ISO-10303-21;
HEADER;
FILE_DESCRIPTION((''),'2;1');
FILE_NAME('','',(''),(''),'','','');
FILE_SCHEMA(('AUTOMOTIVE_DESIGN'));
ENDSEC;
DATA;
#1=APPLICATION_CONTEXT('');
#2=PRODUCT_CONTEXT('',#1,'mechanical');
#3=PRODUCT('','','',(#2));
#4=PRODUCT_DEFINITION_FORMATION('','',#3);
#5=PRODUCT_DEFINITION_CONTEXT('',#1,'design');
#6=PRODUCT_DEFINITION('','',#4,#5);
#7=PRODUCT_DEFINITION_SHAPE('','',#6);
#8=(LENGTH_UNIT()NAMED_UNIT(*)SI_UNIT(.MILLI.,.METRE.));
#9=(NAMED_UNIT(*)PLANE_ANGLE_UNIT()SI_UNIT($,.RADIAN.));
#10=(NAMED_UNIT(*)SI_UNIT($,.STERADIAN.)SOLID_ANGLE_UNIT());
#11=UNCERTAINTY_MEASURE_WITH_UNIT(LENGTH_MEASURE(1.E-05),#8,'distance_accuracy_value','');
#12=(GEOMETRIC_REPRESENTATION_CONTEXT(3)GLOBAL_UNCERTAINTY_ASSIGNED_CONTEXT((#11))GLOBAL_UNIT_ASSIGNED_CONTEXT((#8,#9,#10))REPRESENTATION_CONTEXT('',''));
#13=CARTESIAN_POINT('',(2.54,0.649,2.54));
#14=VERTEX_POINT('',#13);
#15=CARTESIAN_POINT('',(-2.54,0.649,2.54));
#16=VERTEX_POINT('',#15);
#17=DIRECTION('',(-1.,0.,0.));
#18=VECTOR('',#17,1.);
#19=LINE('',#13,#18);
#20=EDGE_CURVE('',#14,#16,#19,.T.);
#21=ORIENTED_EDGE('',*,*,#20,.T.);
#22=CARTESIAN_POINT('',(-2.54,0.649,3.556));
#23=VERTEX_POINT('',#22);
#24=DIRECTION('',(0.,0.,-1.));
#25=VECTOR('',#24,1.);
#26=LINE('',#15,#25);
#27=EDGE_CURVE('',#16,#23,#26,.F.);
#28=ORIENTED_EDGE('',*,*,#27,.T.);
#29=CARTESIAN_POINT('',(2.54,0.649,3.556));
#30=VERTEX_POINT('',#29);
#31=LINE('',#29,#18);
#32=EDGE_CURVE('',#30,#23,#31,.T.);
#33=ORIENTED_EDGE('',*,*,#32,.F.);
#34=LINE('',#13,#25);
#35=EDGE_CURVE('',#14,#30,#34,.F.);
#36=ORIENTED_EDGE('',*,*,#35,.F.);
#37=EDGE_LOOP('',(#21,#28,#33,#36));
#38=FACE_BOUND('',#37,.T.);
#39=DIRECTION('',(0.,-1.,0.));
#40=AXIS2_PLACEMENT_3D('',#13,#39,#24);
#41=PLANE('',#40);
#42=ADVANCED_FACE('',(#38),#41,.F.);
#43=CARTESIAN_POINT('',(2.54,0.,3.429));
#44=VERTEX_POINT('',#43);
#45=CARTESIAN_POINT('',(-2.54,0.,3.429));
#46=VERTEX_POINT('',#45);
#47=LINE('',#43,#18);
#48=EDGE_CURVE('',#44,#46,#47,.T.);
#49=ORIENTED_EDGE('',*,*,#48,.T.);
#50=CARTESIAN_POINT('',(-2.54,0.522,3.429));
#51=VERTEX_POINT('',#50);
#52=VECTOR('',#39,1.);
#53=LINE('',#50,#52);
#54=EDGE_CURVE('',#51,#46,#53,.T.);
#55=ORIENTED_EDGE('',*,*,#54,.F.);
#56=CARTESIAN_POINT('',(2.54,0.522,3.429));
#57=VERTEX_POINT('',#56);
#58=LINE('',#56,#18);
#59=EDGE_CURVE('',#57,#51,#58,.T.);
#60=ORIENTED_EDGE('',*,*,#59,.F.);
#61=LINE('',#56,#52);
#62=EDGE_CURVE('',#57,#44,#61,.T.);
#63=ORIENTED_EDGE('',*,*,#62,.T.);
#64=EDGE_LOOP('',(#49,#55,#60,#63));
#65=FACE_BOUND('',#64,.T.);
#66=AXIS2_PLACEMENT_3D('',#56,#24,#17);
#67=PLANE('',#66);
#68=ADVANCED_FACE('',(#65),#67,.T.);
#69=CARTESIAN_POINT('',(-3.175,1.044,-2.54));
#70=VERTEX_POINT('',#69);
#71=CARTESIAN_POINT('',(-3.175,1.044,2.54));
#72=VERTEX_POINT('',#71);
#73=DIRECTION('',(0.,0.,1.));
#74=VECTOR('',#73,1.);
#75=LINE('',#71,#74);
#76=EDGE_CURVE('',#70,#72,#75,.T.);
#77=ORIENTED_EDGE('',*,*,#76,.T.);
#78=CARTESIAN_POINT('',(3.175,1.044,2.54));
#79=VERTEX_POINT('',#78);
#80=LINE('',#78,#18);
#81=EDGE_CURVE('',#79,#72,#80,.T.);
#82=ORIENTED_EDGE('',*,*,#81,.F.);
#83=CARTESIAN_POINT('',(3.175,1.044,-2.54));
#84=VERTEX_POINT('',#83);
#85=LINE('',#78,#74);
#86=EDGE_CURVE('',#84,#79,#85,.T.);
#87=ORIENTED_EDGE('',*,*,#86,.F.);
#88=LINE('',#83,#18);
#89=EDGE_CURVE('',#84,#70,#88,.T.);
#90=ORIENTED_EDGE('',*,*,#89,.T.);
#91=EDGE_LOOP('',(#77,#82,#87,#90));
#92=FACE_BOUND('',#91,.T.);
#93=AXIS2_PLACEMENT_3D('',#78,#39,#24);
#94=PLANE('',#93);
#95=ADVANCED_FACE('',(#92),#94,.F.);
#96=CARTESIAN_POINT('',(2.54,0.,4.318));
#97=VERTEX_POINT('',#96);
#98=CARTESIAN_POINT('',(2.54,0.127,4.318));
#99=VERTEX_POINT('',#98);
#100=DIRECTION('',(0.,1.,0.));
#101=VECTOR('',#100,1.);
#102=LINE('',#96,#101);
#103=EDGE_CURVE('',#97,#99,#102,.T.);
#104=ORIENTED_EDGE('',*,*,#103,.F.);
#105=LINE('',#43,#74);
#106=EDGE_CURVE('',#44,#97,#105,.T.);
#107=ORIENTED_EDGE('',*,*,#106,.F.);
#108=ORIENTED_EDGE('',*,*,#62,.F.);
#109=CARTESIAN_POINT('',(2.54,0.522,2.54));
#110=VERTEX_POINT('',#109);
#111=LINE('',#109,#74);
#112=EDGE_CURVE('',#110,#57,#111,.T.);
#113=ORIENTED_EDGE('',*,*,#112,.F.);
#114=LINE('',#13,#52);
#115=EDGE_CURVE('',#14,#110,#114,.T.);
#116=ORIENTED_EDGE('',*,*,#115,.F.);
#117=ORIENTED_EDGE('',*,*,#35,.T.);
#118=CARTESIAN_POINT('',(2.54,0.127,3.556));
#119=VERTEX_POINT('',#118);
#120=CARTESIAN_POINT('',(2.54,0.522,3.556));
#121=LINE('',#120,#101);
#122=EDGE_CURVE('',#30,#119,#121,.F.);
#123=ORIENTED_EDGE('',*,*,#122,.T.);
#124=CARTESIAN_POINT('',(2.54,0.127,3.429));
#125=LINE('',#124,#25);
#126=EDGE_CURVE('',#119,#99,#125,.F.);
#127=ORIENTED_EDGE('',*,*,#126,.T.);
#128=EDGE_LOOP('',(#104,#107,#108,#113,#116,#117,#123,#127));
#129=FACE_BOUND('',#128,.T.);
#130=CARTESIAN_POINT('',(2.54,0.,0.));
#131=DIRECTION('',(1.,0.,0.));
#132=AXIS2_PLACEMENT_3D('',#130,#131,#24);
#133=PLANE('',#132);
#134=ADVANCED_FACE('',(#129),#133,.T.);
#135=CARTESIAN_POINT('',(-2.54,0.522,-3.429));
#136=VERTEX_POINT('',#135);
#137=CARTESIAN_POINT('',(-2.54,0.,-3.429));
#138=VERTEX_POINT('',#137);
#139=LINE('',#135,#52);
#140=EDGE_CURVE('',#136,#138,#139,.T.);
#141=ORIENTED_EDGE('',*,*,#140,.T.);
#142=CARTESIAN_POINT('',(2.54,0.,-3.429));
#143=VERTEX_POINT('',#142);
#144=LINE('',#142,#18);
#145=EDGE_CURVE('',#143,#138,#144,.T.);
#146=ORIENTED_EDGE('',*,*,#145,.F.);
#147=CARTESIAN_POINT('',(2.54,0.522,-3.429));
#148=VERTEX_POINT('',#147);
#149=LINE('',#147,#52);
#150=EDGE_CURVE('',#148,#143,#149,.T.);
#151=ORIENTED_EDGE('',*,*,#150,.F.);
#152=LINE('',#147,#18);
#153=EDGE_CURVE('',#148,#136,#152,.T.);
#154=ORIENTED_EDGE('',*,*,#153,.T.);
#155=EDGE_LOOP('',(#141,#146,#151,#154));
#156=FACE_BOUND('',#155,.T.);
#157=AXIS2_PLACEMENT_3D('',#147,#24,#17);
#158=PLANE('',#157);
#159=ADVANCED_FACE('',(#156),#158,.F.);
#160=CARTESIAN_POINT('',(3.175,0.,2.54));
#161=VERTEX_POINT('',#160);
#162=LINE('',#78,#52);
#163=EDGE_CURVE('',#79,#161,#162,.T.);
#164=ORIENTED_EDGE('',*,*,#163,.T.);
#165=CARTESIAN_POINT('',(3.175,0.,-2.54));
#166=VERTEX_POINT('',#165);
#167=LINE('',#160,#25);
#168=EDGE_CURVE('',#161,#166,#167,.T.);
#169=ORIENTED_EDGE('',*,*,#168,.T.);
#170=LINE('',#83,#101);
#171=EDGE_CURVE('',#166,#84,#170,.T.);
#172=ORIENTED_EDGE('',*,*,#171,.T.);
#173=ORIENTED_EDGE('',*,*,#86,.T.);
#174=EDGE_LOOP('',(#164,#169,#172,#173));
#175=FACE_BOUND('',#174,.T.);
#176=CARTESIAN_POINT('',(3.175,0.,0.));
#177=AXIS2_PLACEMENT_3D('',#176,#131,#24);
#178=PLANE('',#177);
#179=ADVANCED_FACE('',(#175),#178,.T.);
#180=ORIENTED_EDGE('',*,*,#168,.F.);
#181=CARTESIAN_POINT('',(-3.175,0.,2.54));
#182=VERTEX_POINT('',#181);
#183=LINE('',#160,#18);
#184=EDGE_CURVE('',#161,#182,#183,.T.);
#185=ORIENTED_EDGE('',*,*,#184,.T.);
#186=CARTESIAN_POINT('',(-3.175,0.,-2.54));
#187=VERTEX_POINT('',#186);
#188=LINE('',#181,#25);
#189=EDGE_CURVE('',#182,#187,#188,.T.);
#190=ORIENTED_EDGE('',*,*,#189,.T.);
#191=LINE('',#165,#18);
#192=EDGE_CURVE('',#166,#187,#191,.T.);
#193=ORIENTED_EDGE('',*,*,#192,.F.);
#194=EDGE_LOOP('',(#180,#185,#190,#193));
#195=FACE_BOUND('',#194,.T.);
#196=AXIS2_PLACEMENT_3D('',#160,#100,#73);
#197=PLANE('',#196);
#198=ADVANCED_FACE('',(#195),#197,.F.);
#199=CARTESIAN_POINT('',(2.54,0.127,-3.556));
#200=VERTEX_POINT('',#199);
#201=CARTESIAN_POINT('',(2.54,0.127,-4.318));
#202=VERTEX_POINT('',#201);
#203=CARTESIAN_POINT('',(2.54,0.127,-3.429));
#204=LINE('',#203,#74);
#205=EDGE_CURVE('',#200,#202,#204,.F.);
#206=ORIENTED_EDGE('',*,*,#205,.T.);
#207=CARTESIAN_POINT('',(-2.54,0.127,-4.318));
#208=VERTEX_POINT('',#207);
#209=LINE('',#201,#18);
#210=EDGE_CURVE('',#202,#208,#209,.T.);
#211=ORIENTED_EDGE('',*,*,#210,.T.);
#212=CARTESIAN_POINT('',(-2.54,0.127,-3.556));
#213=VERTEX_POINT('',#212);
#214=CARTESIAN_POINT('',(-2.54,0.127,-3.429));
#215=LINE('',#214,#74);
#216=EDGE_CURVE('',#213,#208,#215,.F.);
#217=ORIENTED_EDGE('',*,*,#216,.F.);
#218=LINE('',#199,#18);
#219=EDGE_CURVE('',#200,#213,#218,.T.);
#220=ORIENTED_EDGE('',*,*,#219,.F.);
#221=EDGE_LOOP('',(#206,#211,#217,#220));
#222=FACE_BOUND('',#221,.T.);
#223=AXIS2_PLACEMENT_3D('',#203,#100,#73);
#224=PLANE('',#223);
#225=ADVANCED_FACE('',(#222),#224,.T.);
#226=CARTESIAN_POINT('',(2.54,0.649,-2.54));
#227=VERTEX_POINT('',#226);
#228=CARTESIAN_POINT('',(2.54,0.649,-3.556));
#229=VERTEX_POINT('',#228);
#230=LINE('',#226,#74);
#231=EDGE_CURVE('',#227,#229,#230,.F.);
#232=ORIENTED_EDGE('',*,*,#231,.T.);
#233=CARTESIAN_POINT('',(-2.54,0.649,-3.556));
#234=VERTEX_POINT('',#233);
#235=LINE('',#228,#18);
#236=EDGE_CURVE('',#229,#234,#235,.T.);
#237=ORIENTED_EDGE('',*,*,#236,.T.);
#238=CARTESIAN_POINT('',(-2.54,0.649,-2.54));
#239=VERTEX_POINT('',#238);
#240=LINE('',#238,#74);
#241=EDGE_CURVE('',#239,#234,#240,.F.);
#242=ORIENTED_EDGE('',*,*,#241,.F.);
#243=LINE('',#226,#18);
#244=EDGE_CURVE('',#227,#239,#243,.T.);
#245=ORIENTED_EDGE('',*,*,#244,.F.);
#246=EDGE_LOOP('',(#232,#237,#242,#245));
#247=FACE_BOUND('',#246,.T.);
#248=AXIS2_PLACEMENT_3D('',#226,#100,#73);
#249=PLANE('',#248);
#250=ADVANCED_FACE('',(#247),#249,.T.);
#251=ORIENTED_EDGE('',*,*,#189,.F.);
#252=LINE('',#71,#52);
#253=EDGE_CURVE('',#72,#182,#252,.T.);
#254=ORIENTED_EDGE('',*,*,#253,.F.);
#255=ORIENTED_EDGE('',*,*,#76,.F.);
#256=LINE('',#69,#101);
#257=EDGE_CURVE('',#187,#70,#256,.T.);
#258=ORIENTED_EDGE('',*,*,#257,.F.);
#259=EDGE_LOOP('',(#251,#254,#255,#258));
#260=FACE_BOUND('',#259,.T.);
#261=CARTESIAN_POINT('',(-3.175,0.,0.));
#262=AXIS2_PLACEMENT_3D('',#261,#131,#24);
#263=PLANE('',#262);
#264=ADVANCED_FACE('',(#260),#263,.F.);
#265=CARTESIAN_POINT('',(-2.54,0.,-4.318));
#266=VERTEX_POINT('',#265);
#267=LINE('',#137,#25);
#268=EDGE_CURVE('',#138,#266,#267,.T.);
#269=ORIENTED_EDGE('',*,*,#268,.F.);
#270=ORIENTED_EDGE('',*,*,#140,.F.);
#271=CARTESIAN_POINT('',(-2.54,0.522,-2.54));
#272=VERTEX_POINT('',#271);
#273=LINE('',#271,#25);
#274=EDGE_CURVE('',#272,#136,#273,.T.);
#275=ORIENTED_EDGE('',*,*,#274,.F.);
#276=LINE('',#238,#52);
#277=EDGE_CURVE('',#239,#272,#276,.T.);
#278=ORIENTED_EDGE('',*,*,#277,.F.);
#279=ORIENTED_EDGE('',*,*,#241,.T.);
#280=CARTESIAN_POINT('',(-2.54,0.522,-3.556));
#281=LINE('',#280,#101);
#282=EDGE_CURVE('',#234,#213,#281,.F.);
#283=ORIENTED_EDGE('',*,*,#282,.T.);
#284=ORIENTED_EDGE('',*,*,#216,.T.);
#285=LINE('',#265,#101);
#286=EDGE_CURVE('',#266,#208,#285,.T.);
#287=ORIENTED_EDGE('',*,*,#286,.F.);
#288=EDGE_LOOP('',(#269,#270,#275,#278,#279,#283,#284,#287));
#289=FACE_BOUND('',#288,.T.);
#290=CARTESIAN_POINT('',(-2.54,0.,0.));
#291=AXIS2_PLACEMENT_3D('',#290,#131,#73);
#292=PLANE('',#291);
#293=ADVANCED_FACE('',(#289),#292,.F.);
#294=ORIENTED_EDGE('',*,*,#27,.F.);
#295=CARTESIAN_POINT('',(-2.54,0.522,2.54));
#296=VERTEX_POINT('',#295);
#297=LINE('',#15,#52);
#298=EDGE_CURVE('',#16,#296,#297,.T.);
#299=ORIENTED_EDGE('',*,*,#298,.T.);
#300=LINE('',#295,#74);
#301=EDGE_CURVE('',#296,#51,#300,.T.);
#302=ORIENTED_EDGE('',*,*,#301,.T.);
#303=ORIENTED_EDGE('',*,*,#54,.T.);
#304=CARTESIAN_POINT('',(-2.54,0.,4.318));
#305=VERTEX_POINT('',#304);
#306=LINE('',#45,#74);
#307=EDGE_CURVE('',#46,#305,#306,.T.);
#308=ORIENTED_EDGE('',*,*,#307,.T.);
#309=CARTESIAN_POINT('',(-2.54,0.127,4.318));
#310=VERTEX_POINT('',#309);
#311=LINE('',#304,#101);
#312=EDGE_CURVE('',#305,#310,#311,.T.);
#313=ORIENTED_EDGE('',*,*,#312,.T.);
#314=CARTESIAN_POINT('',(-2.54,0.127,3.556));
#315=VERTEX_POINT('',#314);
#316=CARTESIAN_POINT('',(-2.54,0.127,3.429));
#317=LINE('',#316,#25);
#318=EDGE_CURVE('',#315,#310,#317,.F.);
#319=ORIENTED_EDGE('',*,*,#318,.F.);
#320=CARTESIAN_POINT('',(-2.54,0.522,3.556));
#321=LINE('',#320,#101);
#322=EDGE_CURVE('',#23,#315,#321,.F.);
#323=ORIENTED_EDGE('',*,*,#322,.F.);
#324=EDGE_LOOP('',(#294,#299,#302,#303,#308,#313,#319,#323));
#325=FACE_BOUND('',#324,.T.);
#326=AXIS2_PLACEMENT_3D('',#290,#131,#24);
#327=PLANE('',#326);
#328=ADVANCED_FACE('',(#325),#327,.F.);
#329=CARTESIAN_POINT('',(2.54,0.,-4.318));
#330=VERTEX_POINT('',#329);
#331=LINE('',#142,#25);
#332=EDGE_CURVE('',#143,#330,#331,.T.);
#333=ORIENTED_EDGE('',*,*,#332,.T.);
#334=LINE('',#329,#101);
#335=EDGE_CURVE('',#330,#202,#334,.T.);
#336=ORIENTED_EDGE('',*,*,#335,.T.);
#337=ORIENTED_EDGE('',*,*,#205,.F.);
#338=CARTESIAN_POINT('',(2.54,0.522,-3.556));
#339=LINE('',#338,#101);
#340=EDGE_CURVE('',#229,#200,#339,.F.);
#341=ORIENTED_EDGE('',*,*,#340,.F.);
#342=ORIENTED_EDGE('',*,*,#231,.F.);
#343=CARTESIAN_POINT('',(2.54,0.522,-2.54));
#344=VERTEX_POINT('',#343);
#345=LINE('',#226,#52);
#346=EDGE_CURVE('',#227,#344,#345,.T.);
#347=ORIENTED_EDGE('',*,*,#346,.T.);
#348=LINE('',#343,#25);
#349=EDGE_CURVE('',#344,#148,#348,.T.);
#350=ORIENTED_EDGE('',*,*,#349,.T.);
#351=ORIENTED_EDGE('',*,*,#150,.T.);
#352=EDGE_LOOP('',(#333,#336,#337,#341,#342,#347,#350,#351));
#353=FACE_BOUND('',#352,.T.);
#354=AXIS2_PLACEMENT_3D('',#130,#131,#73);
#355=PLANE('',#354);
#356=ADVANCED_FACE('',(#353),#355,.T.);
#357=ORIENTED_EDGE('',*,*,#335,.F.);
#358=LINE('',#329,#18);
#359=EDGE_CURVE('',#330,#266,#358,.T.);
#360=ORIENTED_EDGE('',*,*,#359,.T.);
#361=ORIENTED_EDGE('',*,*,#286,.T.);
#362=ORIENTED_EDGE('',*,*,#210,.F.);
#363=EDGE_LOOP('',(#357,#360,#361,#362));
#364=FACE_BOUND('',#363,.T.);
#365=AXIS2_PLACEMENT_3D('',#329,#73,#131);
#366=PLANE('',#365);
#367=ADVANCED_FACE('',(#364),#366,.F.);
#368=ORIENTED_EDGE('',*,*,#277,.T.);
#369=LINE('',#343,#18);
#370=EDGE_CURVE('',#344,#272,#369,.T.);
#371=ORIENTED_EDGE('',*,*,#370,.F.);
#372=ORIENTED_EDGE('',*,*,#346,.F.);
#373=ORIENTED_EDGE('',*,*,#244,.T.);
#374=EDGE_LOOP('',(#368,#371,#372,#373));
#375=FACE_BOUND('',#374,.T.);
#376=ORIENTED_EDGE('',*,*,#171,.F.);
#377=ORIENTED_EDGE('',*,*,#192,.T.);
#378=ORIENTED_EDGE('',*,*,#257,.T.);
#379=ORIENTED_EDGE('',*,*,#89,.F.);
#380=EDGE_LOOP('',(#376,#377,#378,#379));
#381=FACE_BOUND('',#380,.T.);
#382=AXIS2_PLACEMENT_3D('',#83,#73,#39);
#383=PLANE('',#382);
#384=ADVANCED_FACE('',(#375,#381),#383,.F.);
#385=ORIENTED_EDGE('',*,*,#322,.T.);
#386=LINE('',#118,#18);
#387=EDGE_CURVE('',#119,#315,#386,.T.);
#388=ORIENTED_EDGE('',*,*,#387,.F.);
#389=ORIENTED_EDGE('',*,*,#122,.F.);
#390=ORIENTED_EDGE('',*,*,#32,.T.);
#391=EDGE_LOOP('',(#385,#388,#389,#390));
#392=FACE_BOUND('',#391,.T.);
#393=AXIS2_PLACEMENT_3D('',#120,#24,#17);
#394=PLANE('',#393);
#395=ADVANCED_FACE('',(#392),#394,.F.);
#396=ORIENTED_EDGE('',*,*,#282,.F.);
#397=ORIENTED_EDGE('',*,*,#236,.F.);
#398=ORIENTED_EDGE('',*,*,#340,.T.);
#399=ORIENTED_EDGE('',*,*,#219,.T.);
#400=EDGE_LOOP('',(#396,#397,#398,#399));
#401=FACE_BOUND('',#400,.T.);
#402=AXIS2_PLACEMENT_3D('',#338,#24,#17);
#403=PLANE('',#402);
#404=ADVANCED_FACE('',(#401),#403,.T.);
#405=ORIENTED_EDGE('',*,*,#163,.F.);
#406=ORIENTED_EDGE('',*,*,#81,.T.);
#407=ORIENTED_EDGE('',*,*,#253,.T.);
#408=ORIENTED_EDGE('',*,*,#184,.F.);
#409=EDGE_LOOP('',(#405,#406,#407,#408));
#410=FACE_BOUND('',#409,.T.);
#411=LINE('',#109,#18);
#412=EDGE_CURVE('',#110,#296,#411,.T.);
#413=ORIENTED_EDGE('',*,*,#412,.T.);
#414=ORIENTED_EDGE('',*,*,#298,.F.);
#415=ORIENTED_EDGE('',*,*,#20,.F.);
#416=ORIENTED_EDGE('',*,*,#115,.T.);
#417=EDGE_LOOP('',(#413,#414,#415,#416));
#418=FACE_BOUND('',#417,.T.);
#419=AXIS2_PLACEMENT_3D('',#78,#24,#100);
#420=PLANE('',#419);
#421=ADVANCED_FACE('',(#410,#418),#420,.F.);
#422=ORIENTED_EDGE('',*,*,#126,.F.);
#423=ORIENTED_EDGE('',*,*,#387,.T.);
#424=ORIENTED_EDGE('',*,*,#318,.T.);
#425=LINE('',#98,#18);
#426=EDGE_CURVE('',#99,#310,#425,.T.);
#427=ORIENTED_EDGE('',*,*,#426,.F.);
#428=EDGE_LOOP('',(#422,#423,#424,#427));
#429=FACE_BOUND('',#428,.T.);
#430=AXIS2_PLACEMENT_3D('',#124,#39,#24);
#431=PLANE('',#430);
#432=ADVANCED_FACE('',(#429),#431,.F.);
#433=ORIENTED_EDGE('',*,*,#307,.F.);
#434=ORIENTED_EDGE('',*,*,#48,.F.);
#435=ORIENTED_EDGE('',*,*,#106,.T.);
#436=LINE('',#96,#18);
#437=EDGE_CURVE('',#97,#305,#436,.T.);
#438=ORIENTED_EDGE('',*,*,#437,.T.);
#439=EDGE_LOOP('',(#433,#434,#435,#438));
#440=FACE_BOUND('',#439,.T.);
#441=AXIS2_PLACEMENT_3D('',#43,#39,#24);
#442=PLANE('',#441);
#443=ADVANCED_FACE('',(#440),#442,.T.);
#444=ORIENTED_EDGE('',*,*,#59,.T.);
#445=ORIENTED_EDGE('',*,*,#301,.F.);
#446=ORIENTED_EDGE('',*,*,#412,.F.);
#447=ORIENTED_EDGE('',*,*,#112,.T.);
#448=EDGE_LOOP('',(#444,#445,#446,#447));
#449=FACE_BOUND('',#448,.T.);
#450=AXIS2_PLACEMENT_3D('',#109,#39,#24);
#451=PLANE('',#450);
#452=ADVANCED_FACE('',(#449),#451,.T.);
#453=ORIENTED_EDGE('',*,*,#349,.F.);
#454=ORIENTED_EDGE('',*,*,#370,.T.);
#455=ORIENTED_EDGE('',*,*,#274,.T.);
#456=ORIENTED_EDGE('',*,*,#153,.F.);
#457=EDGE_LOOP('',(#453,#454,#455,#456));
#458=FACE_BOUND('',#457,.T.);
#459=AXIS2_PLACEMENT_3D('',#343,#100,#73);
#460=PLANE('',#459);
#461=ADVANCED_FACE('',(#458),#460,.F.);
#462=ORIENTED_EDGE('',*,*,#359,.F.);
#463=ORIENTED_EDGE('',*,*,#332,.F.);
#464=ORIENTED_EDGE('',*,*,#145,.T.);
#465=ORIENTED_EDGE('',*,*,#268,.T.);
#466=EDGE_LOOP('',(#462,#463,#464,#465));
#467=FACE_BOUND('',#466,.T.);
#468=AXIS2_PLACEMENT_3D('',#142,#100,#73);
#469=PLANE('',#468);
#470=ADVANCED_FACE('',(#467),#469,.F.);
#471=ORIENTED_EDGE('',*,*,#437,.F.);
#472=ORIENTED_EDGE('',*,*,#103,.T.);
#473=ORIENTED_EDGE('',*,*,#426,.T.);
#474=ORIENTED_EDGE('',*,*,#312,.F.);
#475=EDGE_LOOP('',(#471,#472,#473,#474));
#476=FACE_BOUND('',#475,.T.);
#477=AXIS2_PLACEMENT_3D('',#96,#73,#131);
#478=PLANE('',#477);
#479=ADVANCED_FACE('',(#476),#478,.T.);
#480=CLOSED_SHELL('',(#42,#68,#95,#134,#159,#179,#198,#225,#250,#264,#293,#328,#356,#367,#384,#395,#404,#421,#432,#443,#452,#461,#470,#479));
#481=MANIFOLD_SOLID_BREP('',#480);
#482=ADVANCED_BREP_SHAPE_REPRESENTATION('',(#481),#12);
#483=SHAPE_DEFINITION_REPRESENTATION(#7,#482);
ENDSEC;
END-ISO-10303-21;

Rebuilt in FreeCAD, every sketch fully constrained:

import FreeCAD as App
import Part
import Sketcher

V = App.Vector
Q = App.Units.Quantity

doc = App.newDocument("Part")
body = doc.addObject("PartDesign::Body", "Body")

# Sketch on YZ plane
sketch1 = body.newObject("Sketcher::SketchObject", "Sketch")
sketch1.AttachmentSupport = (doc.getObject("YZ_Plane"), [""])
sketch1.MapMode = "FlatFace"
sketch1.addGeometry(Part.LineSegment(V(1, 2.5, 0), V(0, 2.5, 0)), False)
sketch1.addGeometry(Part.LineSegment(V(0, 2.5, 0), V(0, -2.5, 0)), False)
sketch1.addGeometry(Part.LineSegment(V(0, -2.5, 0), V(1, -2.5, 0)), False)
sketch1.addGeometry(Part.LineSegment(V(1, -2.5, 0), V(1, 2.5, 0)), False)
sketch1.addConstraint(Sketcher.Constraint("Coincident", 0, 2, 1, 1))
sketch1.addConstraint(Sketcher.Constraint("Coincident", 1, 2, 2, 1))
sketch1.addConstraint(Sketcher.Constraint("Coincident", 2, 2, 3, 1))
sketch1.addConstraint(Sketcher.Constraint("Coincident", 3, 2, 0, 1))
sketch1.addConstraint(Sketcher.Constraint("Horizontal", 0))
sketch1.addConstraint(Sketcher.Constraint("Vertical", 1))
sketch1.addConstraint(Sketcher.Constraint("Horizontal", 2))
sketch1.addConstraint(Sketcher.Constraint("Vertical", 3))
sketch1.addConstraint(Sketcher.Constraint("Symmetric", 0, 2, 1, 2, -1, 1))
sketch1.addConstraint(Sketcher.Constraint("DistanceY", 1, 2, 1, 1, Q("0.2 in")))
sketch1.addConstraint(Sketcher.Constraint("DistanceX", 0, 2, 0, 1, Q("1.044 mm")))
pad1 = body.newObject("PartDesign::Pad", "Pad")
pad1.Profile = sketch1
pad1.Length = Q("0.25 in")
pad1.Midplane = True

# Sketch on YZ plane
sketch2 = body.newObject("Sketcher::SketchObject", "Sketch001")
sketch2.AttachmentSupport = (doc.getObject("YZ_Plane"), [""])
sketch2.MapMode = "FlatFace"
sketch2.addGeometry(Part.LineSegment(V(0.52, 3.43, 0), V(0.52, 2.54, 0)), False)
sketch2.addGeometry(Part.LineSegment(V(0.52, 2.54, 0), V(0.65, 2.54, 0)), False)
sketch2.addGeometry(Part.LineSegment(V(0.65, 2.54, 0), V(0.65, 3.56, 0)), False)
sketch2.addGeometry(Part.LineSegment(V(0.65, 3.56, 0), V(0.13, 3.56, 0)), False)
sketch2.addGeometry(Part.LineSegment(V(0.13, 3.56, 0), V(0.13, 4.32, 0)), False)
sketch2.addGeometry(Part.LineSegment(V(0.13, 4.32, 0), V(0, 4.32, 0)), False)
sketch2.addGeometry(Part.LineSegment(V(0, 4.32, 0), V(0, 3.43, 0)), False)
sketch2.addGeometry(Part.LineSegment(V(0, 3.43, 0), V(0.52, 3.43, 0)), False)
sketch2.addConstraint(Sketcher.Constraint("Coincident", 0, 2, 1, 1))
sketch2.addConstraint(Sketcher.Constraint("Coincident", 1, 2, 2, 1))
sketch2.addConstraint(Sketcher.Constraint("Coincident", 2, 2, 3, 1))
sketch2.addConstraint(Sketcher.Constraint("Coincident", 3, 2, 4, 1))
sketch2.addConstraint(Sketcher.Constraint("Coincident", 4, 2, 5, 1))
sketch2.addConstraint(Sketcher.Constraint("Coincident", 5, 2, 6, 1))
sketch2.addConstraint(Sketcher.Constraint("Coincident", 6, 2, 7, 1))
sketch2.addConstraint(Sketcher.Constraint("Coincident", 7, 2, 0, 1))
sketch2.addConstraint(Sketcher.Constraint("Vertical", 0))
sketch2.addConstraint(Sketcher.Constraint("Horizontal", 1))
sketch2.addConstraint(Sketcher.Constraint("Vertical", 2))
sketch2.addConstraint(Sketcher.Constraint("Horizontal", 3))
sketch2.addConstraint(Sketcher.Constraint("Vertical", 4))
sketch2.addConstraint(Sketcher.Constraint("Horizontal", 5))
sketch2.addConstraint(Sketcher.Constraint("Vertical", 6))
sketch2.addConstraint(Sketcher.Constraint("Horizontal", 7))
sketch2.addConstraint(Sketcher.Constraint("PointOnObject", 5, 2, -2))
sketch2.addConstraint(Sketcher.Constraint("Equal", 1, 5))
sketch2.addConstraint(Sketcher.Constraint("Equal", 0, 6))
sketch2.addConstraint(Sketcher.Constraint("DistanceY", 2, 1, 2, 2, Q("0.04 in")))
sketch2.addConstraint(Sketcher.Constraint("DistanceY", 4, 1, 4, 2, Q("0.03 in")))
sketch2.addConstraint(Sketcher.Constraint("DistanceY", -1, 1, 0, 2, Q("0.1 in")))
sketch2.addConstraint(Sketcher.Constraint("DistanceX", 1, 1, 1, 2, Q("0.005 in")))
sketch2.addConstraint(Sketcher.Constraint("DistanceX", 3, 2, 3, 1, Q("0.522 mm")))
pad2 = body.newObject("PartDesign::Pad", "Pad001")
pad2.Profile = sketch2
pad2.Length = Q("0.2 in")
pad2.Midplane = True
doc.recompute()

mirrored = body.newObject("PartDesign::Mirrored", "Mirrored")
mirrored.Originals = [pad2]
mirrored.MirrorPlane = (doc.getObject("XY_Plane"), [""])
body.Tip = mirrored

doc.recompute()
